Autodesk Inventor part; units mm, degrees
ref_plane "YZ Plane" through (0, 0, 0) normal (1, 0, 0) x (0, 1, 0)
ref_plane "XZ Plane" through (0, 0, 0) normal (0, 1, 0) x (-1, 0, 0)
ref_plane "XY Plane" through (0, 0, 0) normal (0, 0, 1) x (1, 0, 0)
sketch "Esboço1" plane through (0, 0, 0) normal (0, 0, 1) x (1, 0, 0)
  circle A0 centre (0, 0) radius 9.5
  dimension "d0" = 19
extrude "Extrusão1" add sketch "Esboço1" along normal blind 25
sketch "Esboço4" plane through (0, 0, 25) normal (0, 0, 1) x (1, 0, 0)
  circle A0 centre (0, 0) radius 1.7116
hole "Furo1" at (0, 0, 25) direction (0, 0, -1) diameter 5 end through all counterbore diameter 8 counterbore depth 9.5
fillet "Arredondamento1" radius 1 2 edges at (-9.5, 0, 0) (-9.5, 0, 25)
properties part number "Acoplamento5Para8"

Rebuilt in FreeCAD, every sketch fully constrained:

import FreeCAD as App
import Part
import Sketcher
Q = App.Units.Quantity


def edges_at(feature, points):
    """Names of the edges that pass closest to the given points."""
    edges = feature.Shape.Edges
    near = lambda p: min(range(len(edges)), key=lambda i: edges[i].distToShape(Part.Vertex(*p))[0])
    return sorted({f"Edge{near(p) + 1}" for p in points})

doc = App.newDocument("Part")
body = doc.addObject("PartDesign::Body", "Body")

sketch1 = body.newObject("Sketcher::SketchObject", "Sketch")
sketch1.AttachmentSupport = (doc.getObject("XY_Plane"), [""])
sketch1.MapMode = "FlatFace"
sketch1.addGeometry(Part.Circle(App.Vector(0, 0, 0), App.Vector(0, 0, 1), 10), False)
sketch1.addConstraint(Sketcher.Constraint("Coincident", 0, 3, -1, 1))
sketch1.addConstraint(Sketcher.Constraint("Diameter", 0, Q("19 mm")))
pad1 = body.newObject("PartDesign::Pad", "Pad")
pad1.Profile = sketch1
pad1.Length = 25

sketch2 = body.newObject("Sketcher::SketchObject", "Sketch001")
sketch2.AttachmentSupport = (doc.getObject("XY_Plane"), [""])
sketch2.MapMode = "FlatFace"
sketch2.AttachmentOffset = App.Placement(App.Vector(0, 0, 25), App.Rotation())
sketch2.addGeometry(Part.Circle(App.Vector(0, 0, 0), App.Vector(0, 0, 1), 2.5), False)
sketch2.addConstraint(Sketcher.Constraint("Coincident", 0, 3, -1, 1))
sketch2.addConstraint(Sketcher.Constraint("Diameter", 0, Q("5 mm")))
doc.recompute()
hole = body.newObject("PartDesign::Hole", "Hole")
hole.Profile = sketch2
hole.ThreadType = "None"
hole.Diameter = 5
hole.DepthType = "ThroughAll"
hole.HoleCutType = "Counterbore"
hole.HoleCutDiameter = 8
hole.HoleCutDepth = 9.5
doc.recompute()

fillet = body.newObject("PartDesign::Fillet", "Fillet")
fillet.Base = (hole, edges_at(hole, [(-9.5, 0, 0), (-9.5, 0, 25)]))
fillet.Radius = 1

doc.recompute()
